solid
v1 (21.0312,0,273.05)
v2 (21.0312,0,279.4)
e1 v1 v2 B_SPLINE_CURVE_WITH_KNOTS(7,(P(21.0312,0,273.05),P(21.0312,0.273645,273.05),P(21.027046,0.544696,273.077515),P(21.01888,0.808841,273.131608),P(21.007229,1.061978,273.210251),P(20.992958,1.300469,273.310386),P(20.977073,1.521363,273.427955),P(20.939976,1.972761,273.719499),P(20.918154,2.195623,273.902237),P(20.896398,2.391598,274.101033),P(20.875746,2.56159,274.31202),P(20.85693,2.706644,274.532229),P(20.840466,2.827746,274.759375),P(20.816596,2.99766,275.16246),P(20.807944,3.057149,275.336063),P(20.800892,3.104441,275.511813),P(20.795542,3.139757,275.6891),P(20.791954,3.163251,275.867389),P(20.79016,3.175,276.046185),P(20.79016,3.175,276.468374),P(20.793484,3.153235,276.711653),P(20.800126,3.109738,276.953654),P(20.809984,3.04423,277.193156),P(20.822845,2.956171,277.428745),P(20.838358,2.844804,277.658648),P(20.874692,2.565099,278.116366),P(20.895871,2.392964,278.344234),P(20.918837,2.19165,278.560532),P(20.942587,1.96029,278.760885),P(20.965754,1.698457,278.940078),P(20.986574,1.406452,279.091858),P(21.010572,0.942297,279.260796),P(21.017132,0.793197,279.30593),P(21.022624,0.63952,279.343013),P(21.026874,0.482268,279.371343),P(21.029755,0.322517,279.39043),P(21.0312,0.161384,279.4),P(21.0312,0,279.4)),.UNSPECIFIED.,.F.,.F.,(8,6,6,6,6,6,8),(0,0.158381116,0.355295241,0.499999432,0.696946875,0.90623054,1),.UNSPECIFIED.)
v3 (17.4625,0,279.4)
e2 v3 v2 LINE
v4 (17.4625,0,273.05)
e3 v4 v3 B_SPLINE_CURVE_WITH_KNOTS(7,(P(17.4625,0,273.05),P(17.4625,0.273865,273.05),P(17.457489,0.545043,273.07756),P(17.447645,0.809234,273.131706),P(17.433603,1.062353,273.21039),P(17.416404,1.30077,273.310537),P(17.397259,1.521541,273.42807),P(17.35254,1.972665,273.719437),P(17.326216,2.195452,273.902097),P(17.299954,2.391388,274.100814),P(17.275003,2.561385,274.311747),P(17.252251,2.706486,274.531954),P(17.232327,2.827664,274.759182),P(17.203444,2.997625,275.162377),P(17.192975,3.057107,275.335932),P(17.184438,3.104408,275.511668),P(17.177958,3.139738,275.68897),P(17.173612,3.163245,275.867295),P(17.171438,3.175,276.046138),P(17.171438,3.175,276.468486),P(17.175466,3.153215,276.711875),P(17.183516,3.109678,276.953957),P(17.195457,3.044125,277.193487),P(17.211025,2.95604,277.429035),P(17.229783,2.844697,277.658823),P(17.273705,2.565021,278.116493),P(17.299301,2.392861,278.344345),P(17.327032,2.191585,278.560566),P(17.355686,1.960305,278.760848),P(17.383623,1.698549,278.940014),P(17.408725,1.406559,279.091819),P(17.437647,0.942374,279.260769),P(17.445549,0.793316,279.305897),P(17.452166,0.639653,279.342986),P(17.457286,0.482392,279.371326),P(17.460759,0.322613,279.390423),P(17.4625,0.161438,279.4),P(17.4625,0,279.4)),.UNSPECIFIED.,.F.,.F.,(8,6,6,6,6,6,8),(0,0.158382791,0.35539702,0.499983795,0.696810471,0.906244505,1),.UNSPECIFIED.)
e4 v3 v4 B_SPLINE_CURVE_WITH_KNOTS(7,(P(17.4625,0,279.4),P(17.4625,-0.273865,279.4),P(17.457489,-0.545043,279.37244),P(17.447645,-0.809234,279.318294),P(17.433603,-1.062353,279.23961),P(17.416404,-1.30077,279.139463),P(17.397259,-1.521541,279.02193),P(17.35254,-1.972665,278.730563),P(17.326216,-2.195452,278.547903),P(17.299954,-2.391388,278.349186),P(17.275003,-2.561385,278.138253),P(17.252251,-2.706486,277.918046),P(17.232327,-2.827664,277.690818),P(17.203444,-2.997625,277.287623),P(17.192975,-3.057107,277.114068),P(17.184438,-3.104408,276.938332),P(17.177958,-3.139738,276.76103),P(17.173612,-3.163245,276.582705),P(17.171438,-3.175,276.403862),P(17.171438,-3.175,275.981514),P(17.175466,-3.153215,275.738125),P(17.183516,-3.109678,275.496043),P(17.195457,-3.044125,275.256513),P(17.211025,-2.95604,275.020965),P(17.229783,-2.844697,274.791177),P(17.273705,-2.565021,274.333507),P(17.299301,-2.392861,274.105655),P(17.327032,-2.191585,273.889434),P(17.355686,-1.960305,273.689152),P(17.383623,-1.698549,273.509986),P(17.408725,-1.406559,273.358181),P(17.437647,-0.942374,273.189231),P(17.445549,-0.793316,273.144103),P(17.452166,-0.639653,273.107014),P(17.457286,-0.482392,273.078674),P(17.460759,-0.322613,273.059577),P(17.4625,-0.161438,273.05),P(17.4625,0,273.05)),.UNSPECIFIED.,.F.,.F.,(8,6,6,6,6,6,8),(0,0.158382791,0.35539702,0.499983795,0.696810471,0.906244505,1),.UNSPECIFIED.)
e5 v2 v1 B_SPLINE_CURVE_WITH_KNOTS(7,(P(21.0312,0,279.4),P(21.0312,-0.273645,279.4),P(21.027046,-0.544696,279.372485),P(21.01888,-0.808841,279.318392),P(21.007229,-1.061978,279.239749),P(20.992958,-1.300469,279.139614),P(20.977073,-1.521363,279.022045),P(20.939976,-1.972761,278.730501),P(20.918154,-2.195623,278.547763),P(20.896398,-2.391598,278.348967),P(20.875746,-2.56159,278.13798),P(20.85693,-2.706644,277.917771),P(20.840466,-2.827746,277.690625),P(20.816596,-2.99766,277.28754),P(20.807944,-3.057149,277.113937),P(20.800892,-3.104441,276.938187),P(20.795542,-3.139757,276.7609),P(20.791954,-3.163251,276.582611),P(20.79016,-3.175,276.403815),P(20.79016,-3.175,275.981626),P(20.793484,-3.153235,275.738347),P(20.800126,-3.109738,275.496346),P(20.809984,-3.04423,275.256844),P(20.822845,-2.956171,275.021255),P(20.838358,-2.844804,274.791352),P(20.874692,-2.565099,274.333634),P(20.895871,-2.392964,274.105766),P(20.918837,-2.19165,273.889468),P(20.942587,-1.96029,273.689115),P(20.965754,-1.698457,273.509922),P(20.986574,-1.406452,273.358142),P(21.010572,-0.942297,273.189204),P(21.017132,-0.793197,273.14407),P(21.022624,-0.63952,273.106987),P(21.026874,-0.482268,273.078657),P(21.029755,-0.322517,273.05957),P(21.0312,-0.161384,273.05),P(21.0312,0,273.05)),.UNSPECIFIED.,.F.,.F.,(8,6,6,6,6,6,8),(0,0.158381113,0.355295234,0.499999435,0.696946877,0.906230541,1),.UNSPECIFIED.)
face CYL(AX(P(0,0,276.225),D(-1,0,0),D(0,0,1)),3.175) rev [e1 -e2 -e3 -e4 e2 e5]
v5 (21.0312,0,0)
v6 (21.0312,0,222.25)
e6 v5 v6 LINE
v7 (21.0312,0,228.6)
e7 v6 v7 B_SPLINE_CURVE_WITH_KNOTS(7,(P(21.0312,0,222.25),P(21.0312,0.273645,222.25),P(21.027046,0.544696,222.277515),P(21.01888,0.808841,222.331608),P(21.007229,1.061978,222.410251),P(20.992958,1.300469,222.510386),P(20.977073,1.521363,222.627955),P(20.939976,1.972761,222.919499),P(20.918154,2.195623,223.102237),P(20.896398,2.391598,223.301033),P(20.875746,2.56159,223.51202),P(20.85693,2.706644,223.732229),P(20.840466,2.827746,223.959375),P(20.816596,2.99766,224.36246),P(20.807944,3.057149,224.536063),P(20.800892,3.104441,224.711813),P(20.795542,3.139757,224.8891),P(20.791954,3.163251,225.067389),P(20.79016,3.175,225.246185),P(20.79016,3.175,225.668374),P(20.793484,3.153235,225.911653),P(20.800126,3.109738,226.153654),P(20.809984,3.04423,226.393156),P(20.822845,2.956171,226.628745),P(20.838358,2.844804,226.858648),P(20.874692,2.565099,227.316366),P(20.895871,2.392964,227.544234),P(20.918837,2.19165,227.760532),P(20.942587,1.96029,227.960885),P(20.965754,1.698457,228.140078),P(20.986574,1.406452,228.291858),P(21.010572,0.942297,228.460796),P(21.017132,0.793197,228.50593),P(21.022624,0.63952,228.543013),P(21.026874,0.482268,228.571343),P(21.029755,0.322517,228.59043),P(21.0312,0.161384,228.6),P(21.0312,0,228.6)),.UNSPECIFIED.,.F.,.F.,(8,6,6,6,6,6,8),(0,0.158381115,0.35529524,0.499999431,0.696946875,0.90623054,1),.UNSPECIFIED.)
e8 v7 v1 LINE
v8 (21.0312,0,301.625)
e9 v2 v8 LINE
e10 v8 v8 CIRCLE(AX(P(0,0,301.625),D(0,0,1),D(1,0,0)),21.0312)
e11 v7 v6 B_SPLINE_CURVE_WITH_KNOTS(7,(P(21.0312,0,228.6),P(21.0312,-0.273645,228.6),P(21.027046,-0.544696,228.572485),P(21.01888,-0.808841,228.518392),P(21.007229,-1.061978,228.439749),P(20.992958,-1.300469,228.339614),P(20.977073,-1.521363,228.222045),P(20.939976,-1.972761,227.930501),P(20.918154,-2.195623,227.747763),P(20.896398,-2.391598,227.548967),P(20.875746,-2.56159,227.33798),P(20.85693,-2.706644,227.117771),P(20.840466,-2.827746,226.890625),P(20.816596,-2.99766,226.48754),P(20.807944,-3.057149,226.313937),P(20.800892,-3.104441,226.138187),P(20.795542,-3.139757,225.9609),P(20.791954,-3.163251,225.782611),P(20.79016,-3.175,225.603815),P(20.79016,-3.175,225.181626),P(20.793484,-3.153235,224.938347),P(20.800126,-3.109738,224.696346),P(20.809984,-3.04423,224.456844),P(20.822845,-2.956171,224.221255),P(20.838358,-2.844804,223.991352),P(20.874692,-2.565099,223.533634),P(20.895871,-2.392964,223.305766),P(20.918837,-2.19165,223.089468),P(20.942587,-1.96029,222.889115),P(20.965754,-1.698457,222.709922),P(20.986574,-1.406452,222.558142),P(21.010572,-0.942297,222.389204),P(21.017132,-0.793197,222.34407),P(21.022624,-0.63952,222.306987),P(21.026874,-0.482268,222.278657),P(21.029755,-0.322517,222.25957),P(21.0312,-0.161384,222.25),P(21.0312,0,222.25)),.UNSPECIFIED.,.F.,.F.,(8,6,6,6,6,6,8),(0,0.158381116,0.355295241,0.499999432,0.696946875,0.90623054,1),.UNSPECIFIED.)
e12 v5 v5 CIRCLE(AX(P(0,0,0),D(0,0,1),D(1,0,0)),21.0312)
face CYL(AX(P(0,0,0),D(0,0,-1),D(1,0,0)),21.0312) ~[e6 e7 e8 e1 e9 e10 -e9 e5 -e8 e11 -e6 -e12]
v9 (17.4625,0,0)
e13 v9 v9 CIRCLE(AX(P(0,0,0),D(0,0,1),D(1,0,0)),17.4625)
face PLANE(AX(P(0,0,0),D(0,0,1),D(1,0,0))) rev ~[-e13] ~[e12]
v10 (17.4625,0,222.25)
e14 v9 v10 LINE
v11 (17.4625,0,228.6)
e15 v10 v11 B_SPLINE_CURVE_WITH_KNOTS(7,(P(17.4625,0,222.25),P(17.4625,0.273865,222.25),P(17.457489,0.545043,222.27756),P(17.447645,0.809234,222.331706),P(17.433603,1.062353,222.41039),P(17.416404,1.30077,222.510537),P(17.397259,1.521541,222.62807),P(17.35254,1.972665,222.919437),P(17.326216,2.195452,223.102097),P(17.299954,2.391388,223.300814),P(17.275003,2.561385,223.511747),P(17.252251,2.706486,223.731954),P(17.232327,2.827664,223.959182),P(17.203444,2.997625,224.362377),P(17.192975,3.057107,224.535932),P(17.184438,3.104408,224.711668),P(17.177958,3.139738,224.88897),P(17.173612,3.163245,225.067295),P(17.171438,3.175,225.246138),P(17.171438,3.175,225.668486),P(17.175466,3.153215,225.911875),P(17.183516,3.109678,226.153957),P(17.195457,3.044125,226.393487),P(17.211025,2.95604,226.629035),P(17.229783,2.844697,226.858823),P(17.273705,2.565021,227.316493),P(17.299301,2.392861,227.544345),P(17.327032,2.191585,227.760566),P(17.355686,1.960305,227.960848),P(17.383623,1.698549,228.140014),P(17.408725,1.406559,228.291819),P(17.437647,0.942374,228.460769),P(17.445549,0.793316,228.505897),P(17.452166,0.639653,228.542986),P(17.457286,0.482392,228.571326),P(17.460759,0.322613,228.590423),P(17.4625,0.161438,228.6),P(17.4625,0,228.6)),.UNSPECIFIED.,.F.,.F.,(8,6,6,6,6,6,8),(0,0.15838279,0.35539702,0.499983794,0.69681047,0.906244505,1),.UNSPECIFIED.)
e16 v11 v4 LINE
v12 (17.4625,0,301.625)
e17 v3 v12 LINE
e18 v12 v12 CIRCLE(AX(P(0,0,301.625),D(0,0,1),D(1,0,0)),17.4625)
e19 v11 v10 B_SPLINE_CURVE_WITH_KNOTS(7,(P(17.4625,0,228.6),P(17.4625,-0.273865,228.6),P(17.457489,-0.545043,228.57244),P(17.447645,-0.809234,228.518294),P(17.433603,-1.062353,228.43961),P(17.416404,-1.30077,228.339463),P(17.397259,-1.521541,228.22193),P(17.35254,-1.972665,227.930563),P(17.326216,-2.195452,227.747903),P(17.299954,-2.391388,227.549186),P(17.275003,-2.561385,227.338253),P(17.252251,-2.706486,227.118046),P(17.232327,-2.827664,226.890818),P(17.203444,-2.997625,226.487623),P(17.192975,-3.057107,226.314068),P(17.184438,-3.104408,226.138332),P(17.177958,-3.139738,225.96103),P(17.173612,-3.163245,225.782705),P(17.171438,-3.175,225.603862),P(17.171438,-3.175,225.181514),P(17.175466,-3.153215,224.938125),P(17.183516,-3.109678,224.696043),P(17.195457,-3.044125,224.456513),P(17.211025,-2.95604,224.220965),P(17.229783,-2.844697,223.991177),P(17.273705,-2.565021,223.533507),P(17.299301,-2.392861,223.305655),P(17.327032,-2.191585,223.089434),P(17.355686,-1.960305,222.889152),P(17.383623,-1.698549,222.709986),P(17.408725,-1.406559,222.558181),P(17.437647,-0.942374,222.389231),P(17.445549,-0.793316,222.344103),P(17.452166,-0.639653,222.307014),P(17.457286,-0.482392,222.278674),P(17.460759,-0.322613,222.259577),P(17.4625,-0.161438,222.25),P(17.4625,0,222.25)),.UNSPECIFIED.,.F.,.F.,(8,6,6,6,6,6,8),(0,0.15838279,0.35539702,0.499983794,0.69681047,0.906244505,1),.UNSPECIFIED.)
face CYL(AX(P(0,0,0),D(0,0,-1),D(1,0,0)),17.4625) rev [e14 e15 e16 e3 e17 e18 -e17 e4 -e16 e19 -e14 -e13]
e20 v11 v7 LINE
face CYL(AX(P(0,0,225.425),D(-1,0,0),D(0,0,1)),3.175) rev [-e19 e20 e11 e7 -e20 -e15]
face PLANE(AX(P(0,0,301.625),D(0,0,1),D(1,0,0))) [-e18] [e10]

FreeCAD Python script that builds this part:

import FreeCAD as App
import Part
import Sketcher
from FreeCAD import Vector
Q = App.Units.Quantity

doc = App.newDocument("Part")
body = doc.addObject("PartDesign::Body", "Body")

# Sketch on XY plane
sketch1 = doc.addObject("Sketcher::SketchObject", "Sketch")
body.addObject(sketch1)
sketch1.AttachmentSupport = (doc.XY_Plane, [""])
sketch1.MapMode = "FlatFace"
sketch1.addGeometry(Part.Circle(Vector(0, 0, 0), Vector(0, 0, 1), 21), False)
sketch1.addGeometry(Part.Circle(Vector(0, 0, 0), Vector(0, 0, 1), 17), False)
sketch1.addConstraint(Sketcher.Constraint("Coincident", 0, 3, -1, 1))
sketch1.addConstraint(Sketcher.Constraint("Coincident", 1, 3, -1, 1))
sketch1.addConstraint(Sketcher.Constraint("Diameter", 0, Q("1.656 in")))
sketch1.addConstraint(Sketcher.Constraint("Diameter", 1, Q("1.375 in")))
pad1 = doc.addObject("PartDesign::Pad", "Pad")
body.addObject(pad1)
pad1.Profile = sketch1
pad1.Length = Q("11.875 in")

# Sketch on YZ plane
sketch2 = doc.addObject("Sketcher::SketchObject", "Sketch001")
body.addObject(sketch2)
sketch2.AttachmentSupport = (doc.YZ_Plane, [""])
sketch2.MapMode = "FlatFace"
sketch2.addGeometry(Part.Circle(Vector(0, 276.2, 0), Vector(0, 0, 1), 3.2), False)
sketch2.addConstraint(Sketcher.Constraint("PointOnObject", 0, 3, -2))
sketch2.addConstraint(Sketcher.Constraint("Diameter", 0, Q("0.25 in")))
sketch2.addConstraint(Sketcher.Constraint("DistanceY", -1, 1, 0, 3, Q("10.875 in")))
pocket1 = doc.addObject("PartDesign::Pocket", "Pocket")
body.addObject(pocket1)
pocket1.Profile = sketch2
pocket1.Length = Q("15 in")
pocket1.Reversed = True
doc.recompute()

linearpattern = doc.addObject("PartDesign::LinearPattern", "LinearPattern")
body.addObject(linearpattern)
linearpattern.Originals = [pocket1]
linearpattern.Direction = (doc.Z_Axis, [""])
linearpattern.Mode = "offset"
linearpattern.Offset = Q("2 in")
linearpattern.Occurrences = 2
linearpattern.Reversed = True
body.Tip = linearpattern

doc.recompute()
